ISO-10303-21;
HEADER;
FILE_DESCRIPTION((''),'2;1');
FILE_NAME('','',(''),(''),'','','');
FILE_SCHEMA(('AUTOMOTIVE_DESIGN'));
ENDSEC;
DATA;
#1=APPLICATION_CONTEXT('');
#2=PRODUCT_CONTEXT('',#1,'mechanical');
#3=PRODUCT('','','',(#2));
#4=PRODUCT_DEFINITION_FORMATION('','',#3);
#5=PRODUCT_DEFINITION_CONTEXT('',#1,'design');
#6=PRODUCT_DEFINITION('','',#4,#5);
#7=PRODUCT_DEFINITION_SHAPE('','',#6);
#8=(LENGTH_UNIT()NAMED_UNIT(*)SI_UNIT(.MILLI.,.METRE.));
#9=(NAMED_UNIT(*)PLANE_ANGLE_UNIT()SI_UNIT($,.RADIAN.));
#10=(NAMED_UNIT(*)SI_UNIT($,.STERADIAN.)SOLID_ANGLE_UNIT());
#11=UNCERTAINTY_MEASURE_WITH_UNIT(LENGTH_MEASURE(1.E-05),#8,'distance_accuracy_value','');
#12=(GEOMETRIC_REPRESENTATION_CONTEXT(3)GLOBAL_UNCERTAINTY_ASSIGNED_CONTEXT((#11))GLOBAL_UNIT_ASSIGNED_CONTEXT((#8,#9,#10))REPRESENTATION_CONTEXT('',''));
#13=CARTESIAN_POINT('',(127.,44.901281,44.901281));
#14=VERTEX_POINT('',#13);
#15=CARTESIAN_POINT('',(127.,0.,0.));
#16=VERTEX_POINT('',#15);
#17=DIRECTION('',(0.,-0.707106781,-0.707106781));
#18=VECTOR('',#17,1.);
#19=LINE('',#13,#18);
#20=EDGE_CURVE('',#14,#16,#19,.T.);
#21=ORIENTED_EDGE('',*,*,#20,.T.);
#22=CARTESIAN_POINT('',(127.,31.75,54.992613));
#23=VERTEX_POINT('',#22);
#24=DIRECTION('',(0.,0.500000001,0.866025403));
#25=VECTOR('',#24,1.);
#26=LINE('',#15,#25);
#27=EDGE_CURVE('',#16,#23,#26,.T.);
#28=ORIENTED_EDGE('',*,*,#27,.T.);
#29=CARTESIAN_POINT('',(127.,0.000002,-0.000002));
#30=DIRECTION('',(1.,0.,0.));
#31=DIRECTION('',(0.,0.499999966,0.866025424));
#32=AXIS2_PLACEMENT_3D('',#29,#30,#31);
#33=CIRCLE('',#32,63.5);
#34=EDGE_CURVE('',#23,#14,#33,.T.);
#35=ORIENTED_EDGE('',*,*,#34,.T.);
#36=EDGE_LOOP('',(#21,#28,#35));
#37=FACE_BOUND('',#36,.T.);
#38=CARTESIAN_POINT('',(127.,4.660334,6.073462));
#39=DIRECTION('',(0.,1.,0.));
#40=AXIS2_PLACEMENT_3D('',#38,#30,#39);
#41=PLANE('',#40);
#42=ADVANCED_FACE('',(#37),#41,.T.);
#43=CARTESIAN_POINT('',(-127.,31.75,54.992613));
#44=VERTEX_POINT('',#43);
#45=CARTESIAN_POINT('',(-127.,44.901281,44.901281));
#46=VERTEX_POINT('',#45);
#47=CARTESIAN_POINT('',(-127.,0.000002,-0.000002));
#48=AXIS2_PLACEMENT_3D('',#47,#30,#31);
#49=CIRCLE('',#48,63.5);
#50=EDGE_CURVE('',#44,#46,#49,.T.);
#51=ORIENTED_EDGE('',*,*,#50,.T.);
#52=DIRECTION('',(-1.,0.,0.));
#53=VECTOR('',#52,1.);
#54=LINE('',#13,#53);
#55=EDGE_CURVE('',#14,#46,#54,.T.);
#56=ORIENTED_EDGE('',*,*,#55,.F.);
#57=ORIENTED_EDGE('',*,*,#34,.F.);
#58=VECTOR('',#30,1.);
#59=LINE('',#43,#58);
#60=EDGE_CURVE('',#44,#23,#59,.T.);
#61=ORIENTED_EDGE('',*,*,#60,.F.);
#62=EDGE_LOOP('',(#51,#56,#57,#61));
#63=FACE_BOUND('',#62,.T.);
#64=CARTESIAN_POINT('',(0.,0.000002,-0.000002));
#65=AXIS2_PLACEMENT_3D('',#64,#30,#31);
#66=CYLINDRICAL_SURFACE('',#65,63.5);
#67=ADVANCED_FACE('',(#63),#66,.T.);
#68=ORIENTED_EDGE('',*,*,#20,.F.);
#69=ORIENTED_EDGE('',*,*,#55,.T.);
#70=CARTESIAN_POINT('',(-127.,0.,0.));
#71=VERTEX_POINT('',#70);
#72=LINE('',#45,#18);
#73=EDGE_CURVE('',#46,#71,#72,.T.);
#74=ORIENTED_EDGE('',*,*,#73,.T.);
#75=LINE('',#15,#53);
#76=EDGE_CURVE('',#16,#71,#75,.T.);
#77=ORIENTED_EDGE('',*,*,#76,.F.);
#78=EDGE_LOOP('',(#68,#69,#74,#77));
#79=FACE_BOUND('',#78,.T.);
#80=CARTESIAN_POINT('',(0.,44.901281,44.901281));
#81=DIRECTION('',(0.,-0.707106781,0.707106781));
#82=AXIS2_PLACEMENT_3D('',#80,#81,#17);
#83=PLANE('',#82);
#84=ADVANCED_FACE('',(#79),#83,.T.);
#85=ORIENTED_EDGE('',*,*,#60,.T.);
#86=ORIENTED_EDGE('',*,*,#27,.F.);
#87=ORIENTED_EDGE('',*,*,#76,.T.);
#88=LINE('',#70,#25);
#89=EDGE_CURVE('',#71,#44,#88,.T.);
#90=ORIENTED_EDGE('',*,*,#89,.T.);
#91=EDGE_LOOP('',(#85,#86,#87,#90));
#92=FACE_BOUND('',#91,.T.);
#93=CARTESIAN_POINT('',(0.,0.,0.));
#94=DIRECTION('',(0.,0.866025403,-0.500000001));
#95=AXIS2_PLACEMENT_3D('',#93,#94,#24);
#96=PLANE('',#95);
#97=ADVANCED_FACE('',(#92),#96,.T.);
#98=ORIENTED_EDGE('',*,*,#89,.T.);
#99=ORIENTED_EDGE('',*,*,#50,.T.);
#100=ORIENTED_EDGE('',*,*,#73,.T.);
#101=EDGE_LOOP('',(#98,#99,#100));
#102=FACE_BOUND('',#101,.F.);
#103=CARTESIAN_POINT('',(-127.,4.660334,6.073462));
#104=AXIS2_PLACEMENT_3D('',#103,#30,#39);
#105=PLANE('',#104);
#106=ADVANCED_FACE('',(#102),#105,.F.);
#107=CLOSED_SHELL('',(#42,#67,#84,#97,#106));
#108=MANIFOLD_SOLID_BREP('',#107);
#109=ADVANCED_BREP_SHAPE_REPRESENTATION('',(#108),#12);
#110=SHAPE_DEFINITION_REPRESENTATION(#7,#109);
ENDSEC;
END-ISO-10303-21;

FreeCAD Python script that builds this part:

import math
import FreeCAD as App
import Part
import Sketcher
from FreeCAD import Vector
Q = App.Units.Quantity

doc = App.newDocument("Part")
body = doc.addObject("PartDesign::Body", "Body")

sketch1 = body.newObject("Sketcher::SketchObject", "Sketch")
sketch1.AttachmentSupport = (doc.getObject("YZ_Plane"), [""])
sketch1.MapMode = "FlatFace"
sketch1.addGeometry([
    Part.LineSegment(Vector(0, 0, 0), Vector(31.75, 54.992613, 0)),
    Part.ArcOfCircle(Part.Circle(Vector(0.000002, -0.000002, 0), Vector(0, 0, 1), 63.5), math.radians(60.000002), math.radians(405.000002)),
    Part.LineSegment(Vector(44.901281, 44.901281, 0), Vector(0, 0, 0)),
], False)
sketch1.addConstraint([
    Sketcher.Constraint("Coincident", 0, 2, 1, 1),
    Sketcher.Constraint("Coincident", 1, 2, 2, 1),
    Sketcher.Constraint("Coincident", 2, 2, 0, 1),
    Sketcher.Constraint("Coincident", 1, 3, -1, 1),
    Sketcher.Constraint("Coincident", 2, 2, -1, 1),
    Sketcher.Constraint("Radius", 1, Q("2.5 in")),
    Sketcher.Constraint("Angle", 0, Q("60 deg")),
    Sketcher.Constraint("Angle", 2, Q("-135 deg")),
])
pad1 = body.newObject("PartDesign::Pad", "Pad")
pad1.Profile = sketch1
pad1.Type = "TwoLengths"
pad1.Length = Q("5 in")
pad1.Length2 = Q("5 in")

doc.recompute()
